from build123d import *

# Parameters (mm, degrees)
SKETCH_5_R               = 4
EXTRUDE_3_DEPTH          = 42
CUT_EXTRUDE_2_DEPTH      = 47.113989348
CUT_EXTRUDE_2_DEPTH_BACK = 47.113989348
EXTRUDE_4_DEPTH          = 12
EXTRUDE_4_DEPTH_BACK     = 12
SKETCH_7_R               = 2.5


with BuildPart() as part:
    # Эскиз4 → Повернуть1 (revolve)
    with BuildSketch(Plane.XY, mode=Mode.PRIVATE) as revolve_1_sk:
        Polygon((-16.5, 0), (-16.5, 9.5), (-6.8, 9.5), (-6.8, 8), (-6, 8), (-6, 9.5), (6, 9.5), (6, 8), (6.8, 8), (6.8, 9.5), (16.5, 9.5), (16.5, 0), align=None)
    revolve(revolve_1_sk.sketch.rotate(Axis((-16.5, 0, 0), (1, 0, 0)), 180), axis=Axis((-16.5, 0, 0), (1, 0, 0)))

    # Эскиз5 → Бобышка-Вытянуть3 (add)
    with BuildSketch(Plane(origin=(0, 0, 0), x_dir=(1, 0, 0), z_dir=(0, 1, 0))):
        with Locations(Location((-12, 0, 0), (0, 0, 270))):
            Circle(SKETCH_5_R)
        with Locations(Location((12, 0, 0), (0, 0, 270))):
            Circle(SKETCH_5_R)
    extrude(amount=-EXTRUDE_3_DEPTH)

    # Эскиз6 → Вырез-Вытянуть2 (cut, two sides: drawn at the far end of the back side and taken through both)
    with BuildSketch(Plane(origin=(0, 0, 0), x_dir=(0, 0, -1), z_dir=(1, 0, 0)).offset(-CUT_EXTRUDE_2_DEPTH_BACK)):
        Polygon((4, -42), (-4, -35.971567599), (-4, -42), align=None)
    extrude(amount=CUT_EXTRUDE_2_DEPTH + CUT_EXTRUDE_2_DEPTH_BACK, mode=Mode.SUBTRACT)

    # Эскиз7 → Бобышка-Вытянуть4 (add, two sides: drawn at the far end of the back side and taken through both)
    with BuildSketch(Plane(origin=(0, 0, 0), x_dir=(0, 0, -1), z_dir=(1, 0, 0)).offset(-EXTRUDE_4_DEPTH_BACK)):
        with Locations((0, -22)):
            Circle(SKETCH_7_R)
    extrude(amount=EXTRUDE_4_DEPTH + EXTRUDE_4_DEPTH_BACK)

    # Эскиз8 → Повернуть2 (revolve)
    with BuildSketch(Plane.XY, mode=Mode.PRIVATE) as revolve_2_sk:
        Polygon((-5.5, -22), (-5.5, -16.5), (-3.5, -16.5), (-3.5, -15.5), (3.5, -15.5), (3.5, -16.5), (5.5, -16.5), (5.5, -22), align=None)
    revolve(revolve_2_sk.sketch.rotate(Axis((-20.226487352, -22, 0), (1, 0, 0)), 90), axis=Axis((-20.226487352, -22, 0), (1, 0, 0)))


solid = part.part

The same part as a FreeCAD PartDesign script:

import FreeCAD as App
import Part
import Sketcher

V = App.Vector
Q = App.Units.Quantity

doc = App.newDocument("Part")
body = doc.addObject("PartDesign::Body", "Body")

# Sketch on XY plane
sketch1 = doc.addObject("Sketcher::SketchObject", "Sketch")
body.addObject(sketch1)
sketch1.AttachmentSupport = (doc.XY_Plane, [""])
sketch1.MapMode = "FlatFace"
sketch1.addGeometry([
    Part.LineSegment(V(-16.5, 9.5, 0), V(-16.5, 0, 0)),  # 0
    Part.LineSegment(V(-16.5, 0, 0), V(16.5, 0, 0)),  # 1
    Part.LineSegment(V(16.5, 0, 0), V(16.5, 9.5, 0)),  # 2
    Part.LineSegment(V(16.5, 9.5, 0), V(6.8, 9.5, 0)),  # 3
    Part.LineSegment(V(6.8, 9.5, 0), V(6.8, 8, 0)),  # 4
    Part.LineSegment(V(6.8, 8, 0), V(6, 8, 0)),  # 5
    Part.LineSegment(V(6, 8, 0), V(6, 9.5, 0)),  # 6
    Part.LineSegment(V(6, 9.5, 0), V(-6, 9.5, 0)),  # 7
    Part.LineSegment(V(-6, 9.5, 0), V(-6, 8, 0)),  # 8
    Part.LineSegment(V(-6, 8, 0), V(-6.8, 8, 0)),  # 9
    Part.LineSegment(V(-6.8, 8, 0), V(-6.8, 9.5, 0)),  # 10
    Part.LineSegment(V(-6.8, 9.5, 0), V(-16.5, 9.5, 0)),  # 11
], False)
sketch1.addConstraint([
    Sketcher.Constraint("Coincident", 0, 2, 1, 1),
    Sketcher.Constraint("Coincident", 1, 2, 2, 1),
    Sketcher.Constraint("Coincident", 2, 2, 3, 1),
    Sketcher.Constraint("Coincident", 3, 2, 4, 1),
    Sketcher.Constraint("Coincident", 4, 2, 5, 1),
    Sketcher.Constraint("Coincident", 5, 2, 6, 1),
    Sketcher.Constraint("Coincident", 6, 2, 7, 1),
    Sketcher.Constraint("Coincident", 7, 2, 8, 1),
    Sketcher.Constraint("Coincident", 8, 2, 9, 1),
    Sketcher.Constraint("Coincident", 9, 2, 10, 1),
    Sketcher.Constraint("Coincident", 10, 2, 11, 1),
    Sketcher.Constraint("Coincident", 11, 2, 0, 1),
    Sketcher.Constraint("Vertical", 0),
    Sketcher.Constraint("Horizontal", 1),
    Sketcher.Constraint("Vertical", 2),
    Sketcher.Constraint("Horizontal", 3),
    Sketcher.Constraint("Vertical", 4),
    Sketcher.Constraint("Horizontal", 5),
    Sketcher.Constraint("Vertical", 6),
    Sketcher.Constraint("Horizontal", 7),
    Sketcher.Constraint("Vertical", 8),
    Sketcher.Constraint("Horizontal", 9),
    Sketcher.Constraint("Vertical", 10),
    Sketcher.Constraint("Horizontal", 11),
    Sketcher.Constraint("Symmetric", 0, 2, 1, 2, -1, 1),
    Sketcher.Constraint("Symmetric", 5, 2, 8, 2, -2),
    Sketcher.Constraint("Symmetric", 3, 2, 10, 2, -2),
    Sketcher.Constraint("Horizontal", 3, 2, 6, 2),
    Sketcher.Constraint("DistanceX", 1, 1, 1, 2, Q("33 mm")),
    Sketcher.Constraint("DistanceX", 7, 2, 7, 1, Q("12 mm")),
    Sketcher.Constraint("DistanceX", 3, 2, 3, 1, Q("9.7 mm")),
    Sketcher.Constraint("DistanceY", 0, 2, 0, 1, Q("9.5 mm")),
    Sketcher.Constraint("DistanceY", 4, 2, 4, 1, Q("1.5 mm")),
])
revolution = doc.addObject("PartDesign::Revolution", "Revolution")
body.addObject(revolution)
revolution.Profile = sketch1
revolution.ReferenceAxis = (sketch1, ["H_Axis"])
revolution.Angle = 360

# Sketch on XZ plane
sketch2 = doc.addObject("Sketcher::SketchObject", "Sketch001")
body.addObject(sketch2)
sketch2.AttachmentSupport = (doc.XZ_Plane, [""])
sketch2.MapMode = "FlatFace"
sketch2.addGeometry([
    Part.Circle(V(-12, 0, 0), V(0, 0, 1), 4),
    Part.Circle(V(12, 0, 0), V(0, 0, 1), 4),
], False)
sketch2.addConstraint([
    Sketcher.Constraint("Equal", 0, 1),
    Sketcher.Constraint("Symmetric", 0, 3, 1, 3, -1, 1),
    Sketcher.Constraint("PointOnObject", 0, 3, -1),
    Sketcher.Constraint("Diameter", 0, Q("8 mm")),
    Sketcher.Constraint("DistanceX", 0, 3, -1, 1, Q("12 mm")),
])
pad1 = doc.addObject("PartDesign::Pad", "Pad")
body.addObject(pad1)
pad1.Profile = sketch2
pad1.Length = 42

# Sketch on YZ plane
sketch3 = doc.addObject("Sketcher::SketchObject", "Sketch002")
body.addObject(sketch3)
sketch3.AttachmentSupport = (doc.YZ_Plane, [""])
sketch3.MapMode = "FlatFace"
sketch3.addGeometry([
    Part.LineSegment(V(-42, -4, 0), V(-36, 4, 0)),
    Part.LineSegment(V(-36, 4, 0), V(-42, 4, 0)),
    Part.LineSegment(V(-42, 4, 0), V(-42, -4, 0)),
], False)
sketch3.addConstraint([
    Sketcher.Constraint("Coincident", 0, 2, 1, 1),
    Sketcher.Constraint("Coincident", 1, 2, 2, 1),
    Sketcher.Constraint("Coincident", 2, 2, 0, 1),
    Sketcher.Constraint("Horizontal", 1),
    Sketcher.Constraint("Vertical", 2),
    Sketcher.Constraint("DistanceY", 2, 2, 2, 1, Q("8 mm")),
    Sketcher.Constraint("Angle", 0, Q("53 deg")),
    Sketcher.Constraint("DistanceY", -1, 1, 0, 2, Q("4 mm")),
    Sketcher.Constraint("DistanceX", 1, 2, -1, 1, Q("42 mm")),
])
pocket1 = doc.addObject("PartDesign::Pocket", "Pocket")
body.addObject(pocket1)
pocket1.Profile = sketch3
pocket1.Type = "ThroughAll"
pocket1.Midplane = True

# Sketch on YZ plane
sketch4 = doc.addObject("Sketcher::SketchObject", "Sketch003")
body.addObject(sketch4)
sketch4.AttachmentSupport = (doc.YZ_Plane, [""])
sketch4.MapMode = "FlatFace"
sketch4.addGeometry(Part.Circle(V(-22, 0, 0), V(0, 0, 1), 2.5), False)
sketch4.addConstraint([
    Sketcher.Constraint("PointOnObject", 0, 3, -1),
    Sketcher.Constraint("Diameter", 0, Q("5 mm")),
    Sketcher.Constraint("DistanceX", 0, 3, -1, 1, Q("22 mm")),
])
pad2 = doc.addObject("PartDesign::Pad", "Pad001")
body.addObject(pad2)
pad2.Profile = sketch4
pad2.Type = "TwoLengths"
pad2.Length = 12
pad2.Length2 = 12

# Sketch on XY plane
sketch5 = doc.addObject("Sketcher::SketchObject", "Sketch004")
body.addObject(sketch5)
sketch5.AttachmentSupport = (doc.XY_Plane, [""])
sketch5.MapMode = "FlatFace"
sketch5.addGeometry([
    Part.LineSegment(V(-5.5, -16.5, 0), V(-5.5, -22, 0)),  # 0
    Part.LineSegment(V(-5.5, -22, 0), V(5.5, -22, 0)),  # 1
    Part.LineSegment(V(5.5, -22, 0), V(5.5, -16.5, 0)),  # 2
    Part.LineSegment(V(5.5, -16.5, 0), V(3.5, -16.5, 0)),  # 3
    Part.LineSegment(V(3.5, -16.5, 0), V(3.5, -15.5, 0)),  # 4
    Part.LineSegment(V(3.5, -15.5, 0), V(-3.5, -15.5, 0)),  # 5
    Part.LineSegment(V(-3.5, -15.5, 0), V(-3.5, -16.5, 0)),  # 6
    Part.LineSegment(V(-3.5, -16.5, 0), V(-5.5, -16.5, 0)),  # 7
], False)
sketch5.addGeometry(Part.LineSegment(V(-5.5, -22, 0), V(5.5, -22, 0)), True)  # axis
sketch5.addConstraint([
    Sketcher.Constraint("Coincident", 0, 2, 1, 1),
    Sketcher.Constraint("Coincident", 1, 2, 2, 1),
    Sketcher.Constraint("Coincident", 2, 2, 3, 1),
    Sketcher.Constraint("Coincident", 3, 2, 4, 1),
    Sketcher.Constraint("Coincident", 4, 2, 5, 1),
    Sketcher.Constraint("Coincident", 5, 2, 6, 1),
    Sketcher.Constraint("Coincident", 6, 2, 7, 1),
    Sketcher.Constraint("Coincident", 7, 2, 0, 1),
    Sketcher.Constraint("Vertical", 0),
    Sketcher.Constraint("Horizontal", 1),
    Sketcher.Constraint("Vertical", 2),
    Sketcher.Constraint("Horizontal", 3),
    Sketcher.Constraint("Vertical", 4),
    Sketcher.Constraint("Horizontal", 5),
    Sketcher.Constraint("Vertical", 6),
    Sketcher.Constraint("Horizontal", 7),
    Sketcher.Constraint("Horizontal", 8),
    Sketcher.Constraint("Coincident", 8, 1, 0, 2),
    Sketcher.Constraint("Symmetric", 3, 2, 6, 2, -2),
    Sketcher.Constraint("Vertical", 2, 2, 8, 2),
    Sketcher.Constraint("Equal", 3, 7),
    Sketcher.Constraint("DistanceX", 1, 1, 1, 2, Q("11 mm")),
    Sketcher.Constraint("DistanceX", 3, 2, 3, 1, Q("2 mm")),
    Sketcher.Constraint("DistanceY", 4, 1, 4, 2, Q("1 mm")),
    Sketcher.Constraint("DistanceY", 0, 2, 0, 1, Q("5.5 mm")),
    Sketcher.Constraint("DistanceY", 0, 2, -1, 1, Q("22 mm")),
])
revolution2 = doc.addObject("PartDesign::Revolution", "Revolution001")
body.addObject(revolution2)
revolution2.Profile = sketch5
revolution2.ReferenceAxis = (sketch5, ["Axis0"])
revolution2.Angle = 360

doc.recompute()
